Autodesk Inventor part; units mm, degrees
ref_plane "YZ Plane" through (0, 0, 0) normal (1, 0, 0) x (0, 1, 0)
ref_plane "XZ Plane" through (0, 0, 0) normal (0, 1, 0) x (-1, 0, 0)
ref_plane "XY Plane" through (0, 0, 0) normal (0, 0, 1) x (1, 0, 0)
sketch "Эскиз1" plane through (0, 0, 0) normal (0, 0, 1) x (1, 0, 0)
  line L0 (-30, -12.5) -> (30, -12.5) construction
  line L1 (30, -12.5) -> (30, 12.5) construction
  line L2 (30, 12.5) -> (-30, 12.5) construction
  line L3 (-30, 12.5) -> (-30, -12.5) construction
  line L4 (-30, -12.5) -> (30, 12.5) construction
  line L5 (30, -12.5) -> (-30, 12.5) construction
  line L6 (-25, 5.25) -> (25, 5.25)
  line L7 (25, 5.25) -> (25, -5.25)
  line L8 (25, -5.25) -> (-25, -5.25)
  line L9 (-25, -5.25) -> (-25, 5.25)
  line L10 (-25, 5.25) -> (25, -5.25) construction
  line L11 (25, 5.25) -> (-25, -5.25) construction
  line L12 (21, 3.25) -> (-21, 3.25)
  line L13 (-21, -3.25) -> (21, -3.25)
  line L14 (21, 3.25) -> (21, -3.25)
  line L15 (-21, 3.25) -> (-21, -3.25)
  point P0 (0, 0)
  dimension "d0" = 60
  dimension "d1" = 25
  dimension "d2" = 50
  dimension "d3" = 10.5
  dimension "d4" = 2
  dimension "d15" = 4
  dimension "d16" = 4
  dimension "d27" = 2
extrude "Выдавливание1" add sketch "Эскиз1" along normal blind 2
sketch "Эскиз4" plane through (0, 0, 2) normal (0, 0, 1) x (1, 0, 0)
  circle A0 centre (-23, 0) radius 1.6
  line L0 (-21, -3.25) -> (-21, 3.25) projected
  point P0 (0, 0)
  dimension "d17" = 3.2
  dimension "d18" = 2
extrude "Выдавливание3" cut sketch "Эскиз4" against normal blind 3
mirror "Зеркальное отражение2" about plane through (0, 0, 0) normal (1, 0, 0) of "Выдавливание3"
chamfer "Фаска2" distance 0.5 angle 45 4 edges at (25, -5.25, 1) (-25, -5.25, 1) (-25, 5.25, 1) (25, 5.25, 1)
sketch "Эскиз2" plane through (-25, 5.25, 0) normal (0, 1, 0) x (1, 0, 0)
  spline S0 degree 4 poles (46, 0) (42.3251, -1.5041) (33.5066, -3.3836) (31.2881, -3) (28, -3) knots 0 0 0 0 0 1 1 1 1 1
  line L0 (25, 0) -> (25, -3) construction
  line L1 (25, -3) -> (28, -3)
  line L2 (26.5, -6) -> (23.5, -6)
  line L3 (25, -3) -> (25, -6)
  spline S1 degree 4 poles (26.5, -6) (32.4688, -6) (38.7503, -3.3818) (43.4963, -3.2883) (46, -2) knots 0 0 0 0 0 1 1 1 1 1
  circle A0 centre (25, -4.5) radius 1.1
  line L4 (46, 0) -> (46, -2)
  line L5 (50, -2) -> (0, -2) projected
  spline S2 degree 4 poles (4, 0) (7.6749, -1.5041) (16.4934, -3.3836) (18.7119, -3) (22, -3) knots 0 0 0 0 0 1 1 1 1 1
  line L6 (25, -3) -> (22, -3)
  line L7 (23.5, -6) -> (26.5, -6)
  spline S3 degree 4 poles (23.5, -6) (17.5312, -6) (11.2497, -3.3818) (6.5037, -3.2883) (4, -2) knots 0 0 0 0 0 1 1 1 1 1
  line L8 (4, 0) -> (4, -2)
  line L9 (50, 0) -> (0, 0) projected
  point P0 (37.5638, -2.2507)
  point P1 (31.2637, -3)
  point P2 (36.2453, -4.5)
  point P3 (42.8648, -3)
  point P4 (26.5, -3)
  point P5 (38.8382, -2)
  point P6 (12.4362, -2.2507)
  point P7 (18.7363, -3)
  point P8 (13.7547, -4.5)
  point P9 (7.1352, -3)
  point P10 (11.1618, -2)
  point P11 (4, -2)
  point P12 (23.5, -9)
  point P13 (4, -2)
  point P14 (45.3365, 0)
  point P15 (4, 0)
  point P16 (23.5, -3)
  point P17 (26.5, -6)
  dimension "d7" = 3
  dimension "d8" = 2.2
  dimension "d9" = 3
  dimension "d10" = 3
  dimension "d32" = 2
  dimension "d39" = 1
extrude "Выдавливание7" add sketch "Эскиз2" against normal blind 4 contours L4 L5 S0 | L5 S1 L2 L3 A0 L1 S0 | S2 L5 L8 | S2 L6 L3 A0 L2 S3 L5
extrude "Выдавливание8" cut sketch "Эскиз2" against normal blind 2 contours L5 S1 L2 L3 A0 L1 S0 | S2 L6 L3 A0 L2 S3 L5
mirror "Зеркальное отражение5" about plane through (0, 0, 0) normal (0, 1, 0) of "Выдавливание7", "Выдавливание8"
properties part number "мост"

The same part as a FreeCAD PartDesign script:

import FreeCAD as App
import Part
import Sketcher

V = App.Vector


def edges_at(feature, points):
    """Names of the edges that pass closest to the given points."""
    edges = feature.Shape.Edges
    near = lambda p: min(range(len(edges)), key=lambda i: edges[i].distToShape(Part.Vertex(*p))[0])
    return sorted({f"Edge{near(p) + 1}" for p in points})

doc = App.newDocument("Part")
body = doc.addObject("PartDesign::Body", "Body")

sketch1 = body.newObject("Sketcher::SketchObject", "Sketch")
sketch1.AttachmentSupport = (doc.getObject("XY_Plane"), [""])
sketch1.MapMode = "FlatFace"
sketch1.addGeometry([
    Part.LineSegment(V(25, 5.25, 0), V(-25, 5.25, 0)),
    Part.LineSegment(V(-25, 5.25, 0), V(-25, -5.25, 0)),
    Part.LineSegment(V(-25, -5.25, 0), V(25, -5.25, 0)),
    Part.LineSegment(V(25, -5.25, 0), V(25, 5.25, 0)),
    Part.LineSegment(V(-21, 3.25, 0), V(21, 3.25, 0)),
    Part.LineSegment(V(21, 3.25, 0), V(21, -3.25, 0)),
    Part.LineSegment(V(21, -3.25, 0), V(-21, -3.25, 0)),
    Part.LineSegment(V(-21, -3.25, 0), V(-21, 3.25, 0)),
], False)
sketch1.addConstraint([
    Sketcher.Constraint("Coincident", 0, 2, 1, 1),
    Sketcher.Constraint("Coincident", 1, 2, 2, 1),
    Sketcher.Constraint("Coincident", 2, 2, 3, 1),
    Sketcher.Constraint("Coincident", 3, 2, 0, 1),
    Sketcher.Constraint("Coincident", 4, 2, 5, 1),
    Sketcher.Constraint("Coincident", 5, 2, 6, 1),
    Sketcher.Constraint("Coincident", 6, 2, 7, 1),
    Sketcher.Constraint("Coincident", 7, 2, 4, 1),
    Sketcher.Constraint("Horizontal", 0),
    Sketcher.Constraint("Vertical", 1),
    Sketcher.Constraint("Horizontal", 2),
    Sketcher.Constraint("Vertical", 3),
    Sketcher.Constraint("Horizontal", 4),
    Sketcher.Constraint("Vertical", 5),
    Sketcher.Constraint("Horizontal", 6),
    Sketcher.Constraint("Vertical", 7),
    Sketcher.Constraint("Symmetric", 0, 2, 2, 2, -1, 1),
    Sketcher.Constraint("Symmetric", 4, 2, 6, 2, -1, 1),
    Sketcher.Constraint("DistanceX", 0, 2, 0, 1, 50.0),
    Sketcher.Constraint("DistanceY", 1, 2, 1, 1, 10.5),
    Sketcher.Constraint("DistanceX", 4, 2, 3, 2, 4.0),
    Sketcher.Constraint("DistanceY", 4, 2, 3, 2, 2.0),
])
pad1 = body.newObject("PartDesign::Pad", "Pad")
pad1.Profile = sketch1
pad1.Length = 2

sketch2 = body.newObject("Sketcher::SketchObject", "Sketch001")
sketch2.AttachmentSupport = (doc.getObject("XY_Plane"), [""])
sketch2.MapMode = "FlatFace"
sketch2.AttachmentOffset = App.Placement(V(0, 0, 2), App.Rotation())
sketch2.addGeometry(Part.Circle(V(-23, 0, 0), V(0, 0, 1), 1.6), False)
sketch2.addConstraint([
    Sketcher.Constraint("PointOnObject", 0, 3, -1),
    Sketcher.Constraint("Diameter", 0, 3.2),
    Sketcher.Constraint("DistanceX", 0, 3, -1, 1, 23.0),
])
pocket1 = body.newObject("PartDesign::Pocket", "Pocket")
pocket1.Profile = sketch2
pocket1.Length = 3
doc.recompute()

mirrored = body.newObject("PartDesign::Mirrored", "Mirrored")
mirrored.Originals = [pocket1]
mirrored.MirrorPlane = (doc.getObject("YZ_Plane"), [""])
body.Tip = mirrored
doc.recompute()

chamfer = body.newObject("PartDesign::Chamfer", "Chamfer")
chamfer.Base = (mirrored, edges_at(mirrored, [
    (25, -5.25, 1),
    (-25, -5.25, 1),
    (-25, 5.25, 1),
    (25, 5.25, 1),
]))
chamfer.Size = 0.5

sketch3 = body.newObject("Sketcher::SketchObject", "Sketch002")
sketch3.AttachmentSupport = (doc.getObject("XZ_Plane"), [""])
sketch3.MapMode = "FlatFace"
sketch3.AttachmentOffset = App.Placement(V(0, 0, -5.25), App.Rotation())
sketch3.addGeometry([
    Part.LineSegment(V(21, 2, 0), V(21, 0, 0)),
    Part.BSplineCurve([V(21, 0, 0), V(19.720506, 0.523684, 0), V(17.817488, 1.092876, 0), V(15.786602, 1.596213, 0), V(13.838225, 2, 0)], [5, 5], [0, 0.348171185], False, 4, [1, 1, 1, 1, 1], False),
    Part.BSplineCurve([V(13.838225, 2, 0), V(10.19057, 2.75595, 0), V(6.832104, 3.162984, 0), V(5.143278, 3, 0), V(3, 3, 0)], [5, 5], [0.348171185, 1], False, 4, [1, 1, 1, 1, 1], False),
    Part.LineSegment(V(3, 3, 0), V(-3, 3, 0)),
    Part.BSplineCurve([V(-13.838225, 2, 0), V(-10.19057, 2.75595, 0), V(-6.832104, 3.162984, 0), V(-5.143278, 3, 0), V(-3, 3, 0)], [5, 5], [0.348171185, 1], False, 4, [1, 1, 1, 1, 1], False),
    Part.BSplineCurve([V(-21, 0, 0), V(-19.720506, 0.523684, 0), V(-17.817488, 1.092876, 0), V(-15.786602, 1.596213, 0), V(-13.838225, 2, 0)], [5, 5], [0, 0.348171185], False, 4, [1, 1, 1, 1, 1], False),
    Part.LineSegment(V(-21, 0, 0), V(-21, 2, 0)),
    Part.BSplineCurve([V(-1.5, 6, 0), V(-7.4688, 6, 0), V(-13.7503, 3.3818, 0), V(-18.4963, 3.2883, 0), V(-21, 2, 0)], [5, 5], [0, 1], False, 4, [1, 1, 1, 1, 1], False),
    Part.LineSegment(V(-1.5, 6, 0), V(1.5, 6, 0)),
    Part.BSplineCurve([V(1.5, 6, 0), V(7.4688, 6, 0), V(13.7503, 3.3818, 0), V(18.4963, 3.2883, 0), V(21, 2, 0)], [5, 5], [0, 1], False, 4, [1, 1, 1, 1, 1], False),
    Part.Circle(V(0, 4.5, 0), V(0, 0, 1), 1.1),
], False)
sketch3.addConstraint([
    Sketcher.Constraint("Block", 1),
    Sketcher.Constraint("Block", 2),
    Sketcher.Constraint("Block", 4),
    Sketcher.Constraint("Block", 5),
    Sketcher.Constraint("Block", 7),
    Sketcher.Constraint("Block", 9),
    Sketcher.Constraint("Coincident", 0, 2, 1, 1),
    Sketcher.Constraint("Coincident", 2, 2, 3, 1),
    Sketcher.Constraint("Coincident", 3, 2, 4, 2),
    Sketcher.Constraint("Coincident", 5, 1, 6, 1),
    Sketcher.Constraint("Coincident", 6, 2, 7, 2),
    Sketcher.Constraint("Coincident", 7, 1, 8, 1),
    Sketcher.Constraint("Coincident", 8, 2, 9, 1),
    Sketcher.Constraint("Coincident", 9, 2, 0, 1),
    Sketcher.Constraint("PointOnObject", 10, 3, -2),
    Sketcher.Constraint("Diameter", 10, 2.2),
    Sketcher.Constraint("DistanceY", -1, 1, 10, 3, 4.5),
])
pad2 = body.newObject("PartDesign::Pad", "Pad001")
pad2.Profile = sketch3
pad2.Length = 4

sketch4 = body.newObject("Sketcher::SketchObject", "Sketch003")
sketch4.AttachmentSupport = (doc.getObject("XZ_Plane"), [""])
sketch4.MapMode = "FlatFace"
sketch4.AttachmentOffset = App.Placement(V(0, 0, -5.25), App.Rotation())
sketch4.addGeometry([
    Part.LineSegment(V(21, 2, 0), V(13.838225, 2, 0)),
    Part.BSplineCurve([V(13.838225, 2, 0), V(10.19057, 2.75595, 0), V(6.832104, 3.162984, 0), V(5.143278, 3, 0), V(3, 3, 0)], [5, 5], [0.348171185, 1], False, 4, [1, 1, 1, 1, 1], False),
    Part.LineSegment(V(3, 3, 0), V(-3, 3, 0)),
    Part.BSplineCurve([V(-13.838225, 2, 0), V(-10.19057, 2.75595, 0), V(-6.832104, 3.162984, 0), V(-5.143278, 3, 0), V(-3, 3, 0)], [5, 5], [0.348171185, 1], False, 4, [1, 1, 1, 1, 1], False),
    Part.LineSegment(V(-13.838225, 2, 0), V(-21, 2, 0)),
    Part.BSplineCurve([V(-1.5, 6, 0), V(-7.4688, 6, 0), V(-13.7503, 3.3818, 0), V(-18.4963, 3.2883, 0), V(-21, 2, 0)], [5, 5], [0, 1], False, 4, [1, 1, 1, 1, 1], False),
    Part.LineSegment(V(-1.5, 6, 0), V(1.5, 6, 0)),
    Part.BSplineCurve([V(1.5, 6, 0), V(7.4688, 6, 0), V(13.7503, 3.3818, 0), V(18.4963, 3.2883, 0), V(21, 2, 0)], [5, 5], [0, 1], False, 4, [1, 1, 1, 1, 1], False),
    Part.Circle(V(0, 4.5, 0), V(0, 0, 1), 1.1),
], False)
sketch4.addConstraint([
    Sketcher.Constraint("Block", 1),
    Sketcher.Constraint("Block", 3),
    Sketcher.Constraint("Block", 5),
    Sketcher.Constraint("Block", 7),
    Sketcher.Constraint("Coincident", 0, 2, 1, 1),
    Sketcher.Constraint("Coincident", 1, 2, 2, 1),
    Sketcher.Constraint("Coincident", 2, 2, 3, 2),
    Sketcher.Constraint("Coincident", 3, 1, 4, 1),
    Sketcher.Constraint("Coincident", 4, 2, 5, 2),
    Sketcher.Constraint("Coincident", 5, 1, 6, 1),
    Sketcher.Constraint("Coincident", 6, 2, 7, 1),
    Sketcher.Constraint("Coincident", 7, 2, 0, 1),
    Sketcher.Constraint("PointOnObject", 8, 3, -2),
    Sketcher.Constraint("Diameter", 8, 2.2),
    Sketcher.Constraint("DistanceY", -1, 1, 8, 3, 4.5),
])
pocket2 = body.newObject("PartDesign::Pocket", "Pocket001")
pocket2.Profile = sketch4
pocket2.Length = 2
pocket2.Reversed = True
doc.recompute()

mirrored2 = body.newObject("PartDesign::Mirrored", "Mirrored001")
mirrored2.Originals = [pad2, pocket2]
mirrored2.MirrorPlane = (doc.getObject("XZ_Plane"), [""])
body.Tip = mirrored2

doc.recompute()
